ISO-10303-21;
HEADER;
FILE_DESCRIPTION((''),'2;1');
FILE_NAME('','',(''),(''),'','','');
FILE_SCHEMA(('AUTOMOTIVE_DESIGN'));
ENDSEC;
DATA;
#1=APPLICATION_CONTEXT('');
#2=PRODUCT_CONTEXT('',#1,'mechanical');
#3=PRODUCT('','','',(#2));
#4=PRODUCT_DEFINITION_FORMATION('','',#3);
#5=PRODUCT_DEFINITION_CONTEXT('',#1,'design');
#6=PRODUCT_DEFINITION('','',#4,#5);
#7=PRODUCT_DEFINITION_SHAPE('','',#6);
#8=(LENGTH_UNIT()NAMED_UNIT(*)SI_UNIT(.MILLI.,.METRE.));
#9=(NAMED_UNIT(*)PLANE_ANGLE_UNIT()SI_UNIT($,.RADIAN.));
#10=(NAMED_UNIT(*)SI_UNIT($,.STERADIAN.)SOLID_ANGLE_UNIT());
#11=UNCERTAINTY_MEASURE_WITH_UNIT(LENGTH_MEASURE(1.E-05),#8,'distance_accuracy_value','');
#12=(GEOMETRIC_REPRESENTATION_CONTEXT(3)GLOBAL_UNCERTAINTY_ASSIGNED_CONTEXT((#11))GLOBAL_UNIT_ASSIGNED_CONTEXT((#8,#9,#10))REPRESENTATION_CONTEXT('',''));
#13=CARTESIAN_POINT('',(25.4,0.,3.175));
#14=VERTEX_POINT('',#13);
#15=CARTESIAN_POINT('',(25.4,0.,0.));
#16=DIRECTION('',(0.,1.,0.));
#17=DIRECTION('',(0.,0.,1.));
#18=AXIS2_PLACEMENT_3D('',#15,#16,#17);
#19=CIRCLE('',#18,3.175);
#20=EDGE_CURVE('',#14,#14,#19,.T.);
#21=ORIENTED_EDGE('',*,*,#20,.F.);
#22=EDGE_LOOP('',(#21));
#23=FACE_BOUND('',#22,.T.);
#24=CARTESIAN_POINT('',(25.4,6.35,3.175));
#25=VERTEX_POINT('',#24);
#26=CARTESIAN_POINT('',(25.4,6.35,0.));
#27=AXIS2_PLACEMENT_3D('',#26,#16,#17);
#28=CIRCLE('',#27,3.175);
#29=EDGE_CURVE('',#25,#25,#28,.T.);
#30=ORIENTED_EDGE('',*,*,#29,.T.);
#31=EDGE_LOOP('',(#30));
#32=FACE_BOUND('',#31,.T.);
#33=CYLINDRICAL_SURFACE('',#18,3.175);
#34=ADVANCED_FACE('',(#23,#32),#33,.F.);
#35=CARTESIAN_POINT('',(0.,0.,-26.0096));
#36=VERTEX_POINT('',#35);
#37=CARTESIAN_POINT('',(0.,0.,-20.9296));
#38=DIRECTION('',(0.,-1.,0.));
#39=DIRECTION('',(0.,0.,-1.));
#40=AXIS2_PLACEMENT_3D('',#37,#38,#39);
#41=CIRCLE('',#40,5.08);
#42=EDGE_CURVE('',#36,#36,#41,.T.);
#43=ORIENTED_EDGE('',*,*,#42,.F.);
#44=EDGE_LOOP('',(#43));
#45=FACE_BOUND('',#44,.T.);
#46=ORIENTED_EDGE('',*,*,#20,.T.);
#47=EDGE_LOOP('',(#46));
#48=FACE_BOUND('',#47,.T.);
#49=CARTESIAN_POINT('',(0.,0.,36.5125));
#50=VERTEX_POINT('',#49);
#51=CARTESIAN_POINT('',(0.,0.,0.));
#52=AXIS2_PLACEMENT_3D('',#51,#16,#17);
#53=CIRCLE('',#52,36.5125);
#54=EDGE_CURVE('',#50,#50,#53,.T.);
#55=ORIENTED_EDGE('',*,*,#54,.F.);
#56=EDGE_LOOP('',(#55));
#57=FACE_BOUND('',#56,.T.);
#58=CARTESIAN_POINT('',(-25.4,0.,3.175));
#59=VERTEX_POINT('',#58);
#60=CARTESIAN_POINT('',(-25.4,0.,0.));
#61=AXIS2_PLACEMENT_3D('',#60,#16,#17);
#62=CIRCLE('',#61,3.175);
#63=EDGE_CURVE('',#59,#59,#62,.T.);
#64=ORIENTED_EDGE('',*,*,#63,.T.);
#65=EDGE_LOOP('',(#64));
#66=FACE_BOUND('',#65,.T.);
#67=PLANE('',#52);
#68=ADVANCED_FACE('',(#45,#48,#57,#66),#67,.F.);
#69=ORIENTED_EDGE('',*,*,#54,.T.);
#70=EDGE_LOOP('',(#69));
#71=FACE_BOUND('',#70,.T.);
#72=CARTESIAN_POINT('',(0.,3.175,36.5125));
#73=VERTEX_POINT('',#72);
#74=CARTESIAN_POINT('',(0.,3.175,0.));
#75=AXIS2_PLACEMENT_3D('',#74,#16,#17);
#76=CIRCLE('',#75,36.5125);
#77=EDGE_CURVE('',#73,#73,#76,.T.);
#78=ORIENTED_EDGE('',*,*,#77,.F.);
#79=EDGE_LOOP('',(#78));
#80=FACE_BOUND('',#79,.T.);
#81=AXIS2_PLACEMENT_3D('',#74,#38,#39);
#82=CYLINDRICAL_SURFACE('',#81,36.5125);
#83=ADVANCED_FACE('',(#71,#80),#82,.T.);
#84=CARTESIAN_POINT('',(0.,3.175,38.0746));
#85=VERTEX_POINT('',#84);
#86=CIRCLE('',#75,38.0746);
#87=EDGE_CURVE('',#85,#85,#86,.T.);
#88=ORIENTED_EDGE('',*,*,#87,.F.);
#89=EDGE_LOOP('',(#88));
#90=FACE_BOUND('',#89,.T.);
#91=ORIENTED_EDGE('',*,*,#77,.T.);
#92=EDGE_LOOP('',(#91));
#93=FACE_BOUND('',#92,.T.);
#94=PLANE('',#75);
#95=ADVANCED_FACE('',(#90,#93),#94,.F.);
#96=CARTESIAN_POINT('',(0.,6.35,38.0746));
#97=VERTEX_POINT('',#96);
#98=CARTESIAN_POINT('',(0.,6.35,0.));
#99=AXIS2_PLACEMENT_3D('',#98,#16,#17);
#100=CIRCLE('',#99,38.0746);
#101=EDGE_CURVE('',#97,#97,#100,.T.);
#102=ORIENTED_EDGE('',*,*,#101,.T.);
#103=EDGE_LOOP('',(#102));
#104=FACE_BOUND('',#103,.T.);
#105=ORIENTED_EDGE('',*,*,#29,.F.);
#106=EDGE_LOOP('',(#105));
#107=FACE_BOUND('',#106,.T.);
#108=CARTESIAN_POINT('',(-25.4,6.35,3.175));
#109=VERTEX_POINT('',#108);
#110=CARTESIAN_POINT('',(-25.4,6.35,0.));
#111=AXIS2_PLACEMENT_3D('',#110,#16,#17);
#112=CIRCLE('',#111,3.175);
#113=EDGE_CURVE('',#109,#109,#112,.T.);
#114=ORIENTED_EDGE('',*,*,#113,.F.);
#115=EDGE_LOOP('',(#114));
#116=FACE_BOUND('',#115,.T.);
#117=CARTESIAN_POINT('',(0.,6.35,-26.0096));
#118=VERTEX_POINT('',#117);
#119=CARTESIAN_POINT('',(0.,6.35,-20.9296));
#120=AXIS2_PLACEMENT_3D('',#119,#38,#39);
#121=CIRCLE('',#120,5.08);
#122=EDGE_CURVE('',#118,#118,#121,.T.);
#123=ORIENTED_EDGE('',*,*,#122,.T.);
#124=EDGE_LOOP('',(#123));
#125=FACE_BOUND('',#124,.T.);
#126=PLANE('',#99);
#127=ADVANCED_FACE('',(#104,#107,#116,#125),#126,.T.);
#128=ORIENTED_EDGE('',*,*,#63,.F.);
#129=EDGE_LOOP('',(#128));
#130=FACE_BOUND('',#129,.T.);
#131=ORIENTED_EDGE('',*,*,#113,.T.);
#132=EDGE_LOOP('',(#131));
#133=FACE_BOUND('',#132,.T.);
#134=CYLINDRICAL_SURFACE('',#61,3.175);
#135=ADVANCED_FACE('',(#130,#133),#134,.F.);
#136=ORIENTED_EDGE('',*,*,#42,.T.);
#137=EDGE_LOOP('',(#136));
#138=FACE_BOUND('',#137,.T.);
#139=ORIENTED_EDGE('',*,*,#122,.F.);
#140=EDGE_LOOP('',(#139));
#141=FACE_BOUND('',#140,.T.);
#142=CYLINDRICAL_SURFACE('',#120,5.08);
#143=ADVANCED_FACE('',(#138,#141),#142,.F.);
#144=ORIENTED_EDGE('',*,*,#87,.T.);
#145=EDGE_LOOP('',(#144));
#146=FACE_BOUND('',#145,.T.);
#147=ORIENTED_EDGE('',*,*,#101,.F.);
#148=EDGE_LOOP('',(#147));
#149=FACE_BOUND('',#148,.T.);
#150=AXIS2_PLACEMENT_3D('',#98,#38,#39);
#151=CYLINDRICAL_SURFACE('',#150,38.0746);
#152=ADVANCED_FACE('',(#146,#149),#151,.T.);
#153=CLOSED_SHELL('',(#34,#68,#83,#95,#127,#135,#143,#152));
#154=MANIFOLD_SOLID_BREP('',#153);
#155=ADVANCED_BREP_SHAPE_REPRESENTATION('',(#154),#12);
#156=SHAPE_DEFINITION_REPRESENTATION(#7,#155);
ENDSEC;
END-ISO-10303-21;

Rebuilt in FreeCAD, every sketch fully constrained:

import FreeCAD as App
import Part
import Sketcher
Q = App.Units.Quantity

doc = App.newDocument("Part")
body = doc.addObject("PartDesign::Body", "Body")

# Sketch on XZ plane
sketch1 = body.newObject("Sketcher::SketchObject", "Sketch")
sketch1.AttachmentSupport = (doc.getObject("XZ_Plane"), [""])
sketch1.MapMode = "FlatFace"
sketch1.addGeometry(Part.Circle(App.Vector(0, 0, 0), App.Vector(0, 0, 1), 37), False)
sketch1.addConstraint([
    Sketcher.Constraint("Coincident", 0, 3, -1, 1),
    Sketcher.Constraint("Diameter", 0, Q("2.875 in")),
])
pad1 = body.newObject("PartDesign::Pad", "Pad")
pad1.Profile = sketch1
pad1.Length = Q("0.125 in")
pad1.Reversed = True

# Sketch on XZ plane
sketch2 = body.newObject("Sketcher::SketchObject", "Sketch001")
sketch2.AttachmentSupport = (doc.getObject("XZ_Plane"), [""])
sketch2.MapMode = "FlatFace"
sketch2.AttachmentOffset = App.Placement(App.Vector(0, 0, -0.125 * 25.4), App.Rotation())
sketch2.addGeometry(Part.Circle(App.Vector(0, 0, 0), App.Vector(0, 0, 1), 38), False)
sketch2.addConstraint([
    Sketcher.Constraint("Coincident", 0, 3, -1, 1),
    Sketcher.Constraint("Diameter", 0, Q("2.998 in")),
])
pad2 = body.newObject("PartDesign::Pad", "Pad001")
pad2.Profile = sketch2
pad2.Length = Q("0.125 in")
pad2.Reversed = True

# Sketch on XZ plane
sketch3 = body.newObject("Sketcher::SketchObject", "Sketch002")
sketch3.AttachmentSupport = (doc.getObject("XZ_Plane"), [""])
sketch3.MapMode = "FlatFace"
sketch3.addGeometry(Part.Circle(App.Vector(0, -21, 0), App.Vector(0, 0, 1), 5), False)
sketch3.addConstraint([
    Sketcher.Constraint("PointOnObject", 0, 3, -2),
    Sketcher.Constraint("Diameter", 0, Q("0.4 in")),
    Sketcher.Constraint("DistanceY", 0, 3, -1, 1, Q("0.824 in")),
])
pocket1 = body.newObject("PartDesign::Pocket", "Pocket")
pocket1.Profile = sketch3
pocket1.Type = "ThroughAll"

# Sketch on XZ plane
sketch4 = body.newObject("Sketcher::SketchObject", "Sketch003")
sketch4.AttachmentSupport = (doc.getObject("XZ_Plane"), [""])
sketch4.MapMode = "FlatFace"
sketch4.AttachmentOffset = App.Placement(App.Vector(0, 0, -0.25 * 25.4), App.Rotation())
sketch4.addGeometry([
    Part.Circle(App.Vector(-25.4, 0, 0), App.Vector(0, 0, 1), 3.2),
    Part.Circle(App.Vector(25.4, 0, 0), App.Vector(0, 0, 1), 3.2),
], False)
sketch4.addConstraint([
    Sketcher.Constraint("Equal", 0, 1),
    Sketcher.Constraint("Symmetric", 0, 3, 1, 3, -1, 1),
    Sketcher.Constraint("PointOnObject", 0, 3, -1),
    Sketcher.Constraint("Diameter", 0, Q("0.25 in")),
    Sketcher.Constraint("DistanceX", 0, 3, -1, 1, Q("1 in")),
])
pocket2 = body.newObject("PartDesign::Pocket", "Pocket001")
pocket2.Profile = sketch4
pocket2.Type = "ThroughAll"
pocket2.Reversed = True

doc.recompute()
